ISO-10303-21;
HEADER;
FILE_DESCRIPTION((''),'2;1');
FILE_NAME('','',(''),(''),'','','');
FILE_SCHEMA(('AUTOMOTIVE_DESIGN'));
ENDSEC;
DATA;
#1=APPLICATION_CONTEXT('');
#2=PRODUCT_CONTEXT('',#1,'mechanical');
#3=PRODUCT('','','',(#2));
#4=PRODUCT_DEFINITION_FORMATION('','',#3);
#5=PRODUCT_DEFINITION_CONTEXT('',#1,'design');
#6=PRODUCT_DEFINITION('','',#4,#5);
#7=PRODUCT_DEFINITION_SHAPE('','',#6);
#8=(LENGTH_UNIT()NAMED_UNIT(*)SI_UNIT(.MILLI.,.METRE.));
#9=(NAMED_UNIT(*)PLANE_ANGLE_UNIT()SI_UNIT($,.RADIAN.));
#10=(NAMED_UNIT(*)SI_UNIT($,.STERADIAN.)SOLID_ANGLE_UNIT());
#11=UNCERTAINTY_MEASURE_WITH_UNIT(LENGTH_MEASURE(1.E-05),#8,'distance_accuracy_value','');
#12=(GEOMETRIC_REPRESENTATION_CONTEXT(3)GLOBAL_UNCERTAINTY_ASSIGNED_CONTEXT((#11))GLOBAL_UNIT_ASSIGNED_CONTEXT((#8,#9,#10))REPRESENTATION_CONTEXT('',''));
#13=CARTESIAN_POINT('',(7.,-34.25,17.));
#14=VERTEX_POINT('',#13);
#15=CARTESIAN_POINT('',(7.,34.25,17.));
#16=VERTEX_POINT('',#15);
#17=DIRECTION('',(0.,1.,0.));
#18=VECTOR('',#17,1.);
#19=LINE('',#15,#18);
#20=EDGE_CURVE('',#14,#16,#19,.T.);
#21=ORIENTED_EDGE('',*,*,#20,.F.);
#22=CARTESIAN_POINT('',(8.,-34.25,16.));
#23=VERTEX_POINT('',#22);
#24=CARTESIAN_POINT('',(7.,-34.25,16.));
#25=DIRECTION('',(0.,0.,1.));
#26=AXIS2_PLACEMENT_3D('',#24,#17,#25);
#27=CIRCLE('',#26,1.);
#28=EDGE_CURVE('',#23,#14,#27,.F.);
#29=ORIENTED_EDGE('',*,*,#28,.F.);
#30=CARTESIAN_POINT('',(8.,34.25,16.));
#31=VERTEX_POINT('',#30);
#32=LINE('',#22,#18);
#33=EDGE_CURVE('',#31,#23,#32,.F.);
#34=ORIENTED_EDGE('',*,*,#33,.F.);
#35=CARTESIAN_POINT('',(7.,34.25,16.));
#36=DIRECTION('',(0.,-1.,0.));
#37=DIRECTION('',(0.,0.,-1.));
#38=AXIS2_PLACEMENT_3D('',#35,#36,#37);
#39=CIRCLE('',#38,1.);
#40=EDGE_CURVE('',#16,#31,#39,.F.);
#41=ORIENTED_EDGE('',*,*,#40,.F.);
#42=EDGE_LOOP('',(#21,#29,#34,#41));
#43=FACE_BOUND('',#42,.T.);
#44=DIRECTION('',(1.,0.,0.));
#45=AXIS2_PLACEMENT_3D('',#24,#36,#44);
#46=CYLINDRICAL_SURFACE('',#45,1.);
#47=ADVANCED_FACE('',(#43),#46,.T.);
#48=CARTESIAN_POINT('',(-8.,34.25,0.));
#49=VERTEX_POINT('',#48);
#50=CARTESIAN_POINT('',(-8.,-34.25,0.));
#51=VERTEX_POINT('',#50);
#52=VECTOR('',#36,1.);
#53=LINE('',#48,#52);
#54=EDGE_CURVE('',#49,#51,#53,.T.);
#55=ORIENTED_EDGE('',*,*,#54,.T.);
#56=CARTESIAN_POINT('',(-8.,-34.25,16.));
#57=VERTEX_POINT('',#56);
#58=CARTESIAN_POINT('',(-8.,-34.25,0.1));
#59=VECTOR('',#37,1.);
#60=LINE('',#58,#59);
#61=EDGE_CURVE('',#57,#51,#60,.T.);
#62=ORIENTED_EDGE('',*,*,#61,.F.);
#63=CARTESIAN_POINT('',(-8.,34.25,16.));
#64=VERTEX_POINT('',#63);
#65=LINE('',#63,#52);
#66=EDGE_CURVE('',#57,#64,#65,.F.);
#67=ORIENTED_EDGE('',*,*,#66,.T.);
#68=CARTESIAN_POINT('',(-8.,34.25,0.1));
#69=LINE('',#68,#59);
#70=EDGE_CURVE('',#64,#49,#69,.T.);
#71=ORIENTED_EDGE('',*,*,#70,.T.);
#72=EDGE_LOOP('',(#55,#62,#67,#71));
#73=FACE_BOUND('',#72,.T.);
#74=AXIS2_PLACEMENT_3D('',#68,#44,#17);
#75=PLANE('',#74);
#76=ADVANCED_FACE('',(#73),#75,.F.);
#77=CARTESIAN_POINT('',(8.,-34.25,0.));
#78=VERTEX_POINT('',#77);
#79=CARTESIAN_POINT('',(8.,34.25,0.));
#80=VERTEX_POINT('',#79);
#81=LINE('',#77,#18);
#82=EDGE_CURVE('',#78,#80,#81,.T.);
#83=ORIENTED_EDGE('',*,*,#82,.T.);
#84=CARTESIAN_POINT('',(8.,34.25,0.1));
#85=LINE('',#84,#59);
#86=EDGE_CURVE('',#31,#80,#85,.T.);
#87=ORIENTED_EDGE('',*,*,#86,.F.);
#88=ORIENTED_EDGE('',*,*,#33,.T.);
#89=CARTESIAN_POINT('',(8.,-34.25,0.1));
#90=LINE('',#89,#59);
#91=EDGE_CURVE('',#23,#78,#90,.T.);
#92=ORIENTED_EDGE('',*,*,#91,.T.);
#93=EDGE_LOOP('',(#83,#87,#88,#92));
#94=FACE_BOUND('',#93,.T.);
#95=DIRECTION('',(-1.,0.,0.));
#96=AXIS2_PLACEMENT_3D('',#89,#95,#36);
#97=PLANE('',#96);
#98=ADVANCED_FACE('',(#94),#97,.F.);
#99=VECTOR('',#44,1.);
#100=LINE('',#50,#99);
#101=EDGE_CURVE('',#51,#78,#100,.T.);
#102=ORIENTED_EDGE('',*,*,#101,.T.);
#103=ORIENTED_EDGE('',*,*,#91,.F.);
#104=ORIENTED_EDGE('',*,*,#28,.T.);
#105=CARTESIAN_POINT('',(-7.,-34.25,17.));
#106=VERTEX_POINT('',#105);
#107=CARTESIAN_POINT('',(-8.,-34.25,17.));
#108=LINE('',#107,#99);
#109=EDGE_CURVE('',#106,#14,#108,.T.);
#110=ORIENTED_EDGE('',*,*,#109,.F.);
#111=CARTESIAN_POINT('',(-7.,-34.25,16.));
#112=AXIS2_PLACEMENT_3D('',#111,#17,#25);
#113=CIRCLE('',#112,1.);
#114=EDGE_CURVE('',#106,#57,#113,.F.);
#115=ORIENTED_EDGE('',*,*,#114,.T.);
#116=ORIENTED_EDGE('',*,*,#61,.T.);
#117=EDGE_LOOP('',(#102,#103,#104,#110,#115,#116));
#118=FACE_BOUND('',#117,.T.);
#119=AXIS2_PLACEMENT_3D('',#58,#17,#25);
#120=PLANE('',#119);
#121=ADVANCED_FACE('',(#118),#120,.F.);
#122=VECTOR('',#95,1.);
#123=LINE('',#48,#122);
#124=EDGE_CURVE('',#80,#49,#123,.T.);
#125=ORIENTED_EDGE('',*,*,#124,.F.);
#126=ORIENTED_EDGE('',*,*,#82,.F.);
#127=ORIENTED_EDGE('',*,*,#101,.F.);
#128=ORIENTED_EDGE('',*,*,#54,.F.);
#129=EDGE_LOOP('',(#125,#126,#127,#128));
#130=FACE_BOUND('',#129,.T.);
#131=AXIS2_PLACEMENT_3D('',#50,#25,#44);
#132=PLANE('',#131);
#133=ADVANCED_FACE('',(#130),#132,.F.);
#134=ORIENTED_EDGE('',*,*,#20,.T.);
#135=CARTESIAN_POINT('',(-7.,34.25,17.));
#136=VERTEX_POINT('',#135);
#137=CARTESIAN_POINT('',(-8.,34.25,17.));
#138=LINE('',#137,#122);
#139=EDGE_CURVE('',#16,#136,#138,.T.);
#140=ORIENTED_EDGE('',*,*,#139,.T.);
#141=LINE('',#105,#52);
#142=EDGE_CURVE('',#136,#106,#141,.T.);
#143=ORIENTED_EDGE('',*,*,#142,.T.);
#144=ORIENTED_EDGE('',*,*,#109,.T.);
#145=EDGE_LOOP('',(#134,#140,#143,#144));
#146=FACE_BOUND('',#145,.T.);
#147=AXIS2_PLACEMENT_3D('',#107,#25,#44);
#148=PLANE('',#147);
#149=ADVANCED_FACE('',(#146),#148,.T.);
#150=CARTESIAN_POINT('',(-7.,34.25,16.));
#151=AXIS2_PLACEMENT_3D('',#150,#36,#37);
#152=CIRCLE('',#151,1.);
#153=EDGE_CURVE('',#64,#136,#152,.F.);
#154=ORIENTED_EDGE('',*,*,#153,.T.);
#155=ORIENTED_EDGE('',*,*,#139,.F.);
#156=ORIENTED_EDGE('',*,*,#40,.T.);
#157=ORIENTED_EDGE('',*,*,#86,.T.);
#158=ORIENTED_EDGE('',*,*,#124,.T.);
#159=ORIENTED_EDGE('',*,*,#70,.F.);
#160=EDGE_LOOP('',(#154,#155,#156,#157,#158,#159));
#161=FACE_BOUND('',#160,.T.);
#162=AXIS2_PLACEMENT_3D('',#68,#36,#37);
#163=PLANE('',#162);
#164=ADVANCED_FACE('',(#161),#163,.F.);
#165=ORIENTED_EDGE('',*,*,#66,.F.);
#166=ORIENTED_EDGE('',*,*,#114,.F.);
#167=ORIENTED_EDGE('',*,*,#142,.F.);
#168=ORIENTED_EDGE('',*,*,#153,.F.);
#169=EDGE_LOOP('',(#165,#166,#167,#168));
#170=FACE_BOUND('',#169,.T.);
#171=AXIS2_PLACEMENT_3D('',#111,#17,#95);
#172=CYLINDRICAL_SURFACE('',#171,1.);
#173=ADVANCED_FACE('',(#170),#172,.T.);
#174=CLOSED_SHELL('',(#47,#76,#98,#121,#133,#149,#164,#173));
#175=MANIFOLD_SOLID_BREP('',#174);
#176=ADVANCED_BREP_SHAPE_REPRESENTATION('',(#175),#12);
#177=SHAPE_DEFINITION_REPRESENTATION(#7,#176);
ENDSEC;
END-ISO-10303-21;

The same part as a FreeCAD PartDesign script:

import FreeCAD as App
import Part
import Sketcher


def edges_at(feature, points):
    """Names of the edges that pass closest to the given points."""
    edges = feature.Shape.Edges
    near = lambda p: min(range(len(edges)), key=lambda i: edges[i].distToShape(Part.Vertex(*p))[0])
    return sorted({f"Edge{near(p) + 1}" for p in points})


def add_polygon(sketch, points):
    """Adds a closed chain of lines whose ends are joined by coincident constraints."""
    first, n = sketch.GeometryCount, len(points)
    for a, b in zip(points, points[1:] + points[:1]):
        sketch.addGeometry(Part.LineSegment(App.Vector(*a, 0), App.Vector(*b, 0)), False)
    for i in range(n):
        sketch.addConstraint(Sketcher.Constraint("Coincident", first + i, 2, first + (i + 1) % n, 1))

doc = App.newDocument("Part")
body = doc.addObject("PartDesign::Body", "Body")

sketch1 = doc.addObject("Sketcher::SketchObject", "Sketch")
body.addObject(sketch1)
sketch1.AttachmentSupport = (doc.XY_Plane, [""])
sketch1.MapMode = "FlatFace"
add_polygon(sketch1, [(-8, 34.25), (-8, -34.25), (8, -34.25), (8, 34.25)])
sketch1.addConstraint(Sketcher.Constraint("Vertical", 0))
sketch1.addConstraint(Sketcher.Constraint("Horizontal", 1))
sketch1.addConstraint(Sketcher.Constraint("Vertical", 2))
sketch1.addConstraint(Sketcher.Constraint("Horizontal", 3))
sketch1.addConstraint(Sketcher.Constraint("Symmetric", 0, 2, 2, 2, -1, 1))
sketch1.addConstraint(Sketcher.Constraint("DistanceX", 1, 1, 1, 2, 16.0))
sketch1.addConstraint(Sketcher.Constraint("DistanceY", 0, 2, 0, 1, 68.5))
pad1 = doc.addObject("PartDesign::Pad", "Pad")
body.addObject(pad1)
pad1.Profile = sketch1
pad1.Length = 0.1

sketch2 = doc.addObject("Sketcher::SketchObject", "Sketch001")
body.addObject(sketch2)
sketch2.AttachmentSupport = (doc.XY_Plane, [""])
sketch2.MapMode = "FlatFace"
sketch2.AttachmentOffset = App.Placement(App.Vector(0, 0, 0.1), App.Rotation())
add_polygon(sketch2, [(-8, 34.25), (-8, -34.25), (8, -34.25), (8, 34.25)])
sketch2.addConstraint(Sketcher.Constraint("Vertical", 0))
sketch2.addConstraint(Sketcher.Constraint("Horizontal", 1))
sketch2.addConstraint(Sketcher.Constraint("Vertical", 2))
sketch2.addConstraint(Sketcher.Constraint("Horizontal", 3))
sketch2.addConstraint(Sketcher.Constraint("Symmetric", 0, 2, 2, 2, -1, 1))
sketch2.addConstraint(Sketcher.Constraint("DistanceX", 1, 1, 1, 2, 16.0))
sketch2.addConstraint(Sketcher.Constraint("DistanceY", 0, 2, 0, 1, 68.5))
pad2 = doc.addObject("PartDesign::Pad", "Pad001")
body.addObject(pad2)
pad2.Profile = sketch2
pad2.Length = 16.9
doc.recompute()

fillet = doc.addObject("PartDesign::Fillet", "Fillet")
body.addObject(fillet)
fillet.Base = (pad2, edges_at(pad2, [(-8, 0, 17), (8, 0, 17)]))
fillet.Radius = 1

doc.recompute()
